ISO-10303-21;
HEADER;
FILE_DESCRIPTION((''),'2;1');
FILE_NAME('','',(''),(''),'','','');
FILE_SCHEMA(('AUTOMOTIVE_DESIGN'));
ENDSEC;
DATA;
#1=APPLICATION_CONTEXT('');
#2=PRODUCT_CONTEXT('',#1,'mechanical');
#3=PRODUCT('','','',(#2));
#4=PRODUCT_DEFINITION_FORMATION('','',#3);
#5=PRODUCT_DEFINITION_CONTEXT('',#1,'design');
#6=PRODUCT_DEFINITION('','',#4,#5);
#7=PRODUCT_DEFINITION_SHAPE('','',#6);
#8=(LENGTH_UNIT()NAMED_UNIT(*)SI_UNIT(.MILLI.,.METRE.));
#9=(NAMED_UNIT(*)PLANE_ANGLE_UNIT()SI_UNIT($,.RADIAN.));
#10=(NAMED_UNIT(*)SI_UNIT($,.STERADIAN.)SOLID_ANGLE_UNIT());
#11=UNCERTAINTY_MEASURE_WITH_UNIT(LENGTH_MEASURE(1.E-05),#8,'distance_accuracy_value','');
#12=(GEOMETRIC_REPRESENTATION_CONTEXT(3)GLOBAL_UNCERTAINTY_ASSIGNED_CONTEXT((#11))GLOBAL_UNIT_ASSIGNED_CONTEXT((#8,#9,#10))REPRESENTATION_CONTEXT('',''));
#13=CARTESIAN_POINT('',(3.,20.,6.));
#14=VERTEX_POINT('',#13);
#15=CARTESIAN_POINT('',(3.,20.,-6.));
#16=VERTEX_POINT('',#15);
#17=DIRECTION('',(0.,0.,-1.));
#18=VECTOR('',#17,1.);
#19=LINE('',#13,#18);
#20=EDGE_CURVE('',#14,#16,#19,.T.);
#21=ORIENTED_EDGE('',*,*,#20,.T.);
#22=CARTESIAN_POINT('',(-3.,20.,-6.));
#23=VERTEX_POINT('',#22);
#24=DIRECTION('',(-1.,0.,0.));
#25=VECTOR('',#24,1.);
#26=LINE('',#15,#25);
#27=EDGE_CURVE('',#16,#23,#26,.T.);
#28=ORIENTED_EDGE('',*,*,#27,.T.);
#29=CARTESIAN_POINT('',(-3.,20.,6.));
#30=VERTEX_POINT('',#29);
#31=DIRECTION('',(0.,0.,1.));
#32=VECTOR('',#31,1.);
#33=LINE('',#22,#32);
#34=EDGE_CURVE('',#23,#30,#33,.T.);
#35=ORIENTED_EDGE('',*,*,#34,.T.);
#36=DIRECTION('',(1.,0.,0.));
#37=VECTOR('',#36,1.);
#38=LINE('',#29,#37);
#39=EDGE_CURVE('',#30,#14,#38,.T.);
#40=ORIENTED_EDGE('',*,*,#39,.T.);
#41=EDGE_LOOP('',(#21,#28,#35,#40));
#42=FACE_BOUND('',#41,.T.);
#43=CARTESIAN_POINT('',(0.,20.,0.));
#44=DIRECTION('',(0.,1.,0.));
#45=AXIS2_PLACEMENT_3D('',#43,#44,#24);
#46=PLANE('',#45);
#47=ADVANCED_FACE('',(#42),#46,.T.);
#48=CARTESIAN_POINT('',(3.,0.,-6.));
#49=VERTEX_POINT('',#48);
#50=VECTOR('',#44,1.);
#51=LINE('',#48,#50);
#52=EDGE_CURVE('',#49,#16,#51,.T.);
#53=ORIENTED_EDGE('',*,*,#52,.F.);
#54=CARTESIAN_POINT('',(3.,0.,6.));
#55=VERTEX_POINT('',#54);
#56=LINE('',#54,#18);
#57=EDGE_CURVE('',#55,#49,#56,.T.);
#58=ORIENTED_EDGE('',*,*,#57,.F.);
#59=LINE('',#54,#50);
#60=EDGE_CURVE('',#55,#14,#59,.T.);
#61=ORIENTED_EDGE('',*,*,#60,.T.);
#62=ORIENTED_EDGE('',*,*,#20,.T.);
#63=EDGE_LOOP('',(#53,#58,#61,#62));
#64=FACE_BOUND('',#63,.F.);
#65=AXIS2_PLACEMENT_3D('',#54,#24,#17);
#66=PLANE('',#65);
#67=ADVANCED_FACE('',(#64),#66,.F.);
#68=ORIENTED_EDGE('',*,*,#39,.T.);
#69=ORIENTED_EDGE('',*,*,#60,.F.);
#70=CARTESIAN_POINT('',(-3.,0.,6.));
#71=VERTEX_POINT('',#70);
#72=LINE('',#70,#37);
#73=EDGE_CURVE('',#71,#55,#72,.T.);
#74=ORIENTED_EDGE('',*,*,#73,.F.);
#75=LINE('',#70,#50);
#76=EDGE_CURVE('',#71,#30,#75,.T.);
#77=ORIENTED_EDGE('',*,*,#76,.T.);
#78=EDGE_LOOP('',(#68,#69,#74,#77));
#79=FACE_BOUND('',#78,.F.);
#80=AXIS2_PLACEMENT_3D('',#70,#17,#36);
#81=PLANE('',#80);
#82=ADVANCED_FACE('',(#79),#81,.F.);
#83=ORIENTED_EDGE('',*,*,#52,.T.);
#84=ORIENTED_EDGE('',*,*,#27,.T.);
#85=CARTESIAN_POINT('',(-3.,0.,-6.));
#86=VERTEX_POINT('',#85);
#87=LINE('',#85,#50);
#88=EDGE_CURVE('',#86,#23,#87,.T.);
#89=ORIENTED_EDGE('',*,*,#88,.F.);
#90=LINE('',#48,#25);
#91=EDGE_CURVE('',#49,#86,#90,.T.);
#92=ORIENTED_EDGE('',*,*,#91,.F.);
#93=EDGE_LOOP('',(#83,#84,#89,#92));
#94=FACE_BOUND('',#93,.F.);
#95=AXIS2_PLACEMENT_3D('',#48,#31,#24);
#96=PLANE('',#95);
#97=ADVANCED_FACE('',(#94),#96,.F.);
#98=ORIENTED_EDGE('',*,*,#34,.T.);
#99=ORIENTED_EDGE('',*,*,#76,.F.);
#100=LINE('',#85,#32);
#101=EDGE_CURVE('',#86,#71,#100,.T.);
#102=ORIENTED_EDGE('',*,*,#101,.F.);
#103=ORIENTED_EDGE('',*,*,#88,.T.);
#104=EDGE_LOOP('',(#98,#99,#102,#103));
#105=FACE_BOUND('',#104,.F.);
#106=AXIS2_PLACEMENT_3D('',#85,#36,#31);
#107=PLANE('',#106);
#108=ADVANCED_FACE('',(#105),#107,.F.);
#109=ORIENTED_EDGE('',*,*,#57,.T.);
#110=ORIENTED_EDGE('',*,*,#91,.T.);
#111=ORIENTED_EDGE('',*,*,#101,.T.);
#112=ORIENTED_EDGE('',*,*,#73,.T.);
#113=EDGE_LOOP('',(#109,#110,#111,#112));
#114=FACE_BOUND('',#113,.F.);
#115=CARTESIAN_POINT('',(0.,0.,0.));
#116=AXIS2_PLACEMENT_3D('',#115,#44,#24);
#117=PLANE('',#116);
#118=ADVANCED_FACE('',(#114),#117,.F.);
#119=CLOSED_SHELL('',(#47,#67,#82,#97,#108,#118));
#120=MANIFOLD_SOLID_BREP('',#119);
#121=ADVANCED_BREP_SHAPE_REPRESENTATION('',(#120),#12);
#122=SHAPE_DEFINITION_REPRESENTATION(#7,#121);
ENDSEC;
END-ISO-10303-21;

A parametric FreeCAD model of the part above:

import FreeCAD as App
import Part
import Sketcher
from FreeCAD import Vector

doc = App.newDocument("Part")
body = doc.addObject("PartDesign::Body", "Body")

sketch1 = body.newObject("Sketcher::SketchObject", "Sketch")
sketch1.AttachmentSupport = (doc.getObject("XZ_Plane"), [""])
sketch1.MapMode = "FlatFace"
sketch1.addGeometry(Part.LineSegment(Vector(-3, -6, 0), Vector(-3, 6, 0)), False)
sketch1.addGeometry(Part.LineSegment(Vector(-3, 6, 0), Vector(3, 6, 0)), False)
sketch1.addGeometry(Part.LineSegment(Vector(3, 6, 0), Vector(3, -6, 0)), False)
sketch1.addGeometry(Part.LineSegment(Vector(3, -6, 0), Vector(-3, -6, 0)), False)
sketch1.addConstraint(Sketcher.Constraint("Coincident", 0, 2, 1, 1))
sketch1.addConstraint(Sketcher.Constraint("Coincident", 1, 2, 2, 1))
sketch1.addConstraint(Sketcher.Constraint("Coincident", 2, 2, 3, 1))
sketch1.addConstraint(Sketcher.Constraint("Coincident", 3, 2, 0, 1))
sketch1.addConstraint(Sketcher.Constraint("Vertical", 0))
sketch1.addConstraint(Sketcher.Constraint("Horizontal", 1))
sketch1.addConstraint(Sketcher.Constraint("Vertical", 2))
sketch1.addConstraint(Sketcher.Constraint("Horizontal", 3))
sketch1.addConstraint(Sketcher.Constraint("Symmetric", 0, 2, 2, 2, -1, 1))
sketch1.addConstraint(Sketcher.Constraint("DistanceX", 1, 1, 1, 2, 6.0))
sketch1.addConstraint(Sketcher.Constraint("DistanceY", 0, 1, 0, 2, 12.0))
pad1 = body.newObject("PartDesign::Pad", "Pad")
pad1.Profile = sketch1
pad1.Length = 20
pad1.Reversed = True

doc.recompute()
